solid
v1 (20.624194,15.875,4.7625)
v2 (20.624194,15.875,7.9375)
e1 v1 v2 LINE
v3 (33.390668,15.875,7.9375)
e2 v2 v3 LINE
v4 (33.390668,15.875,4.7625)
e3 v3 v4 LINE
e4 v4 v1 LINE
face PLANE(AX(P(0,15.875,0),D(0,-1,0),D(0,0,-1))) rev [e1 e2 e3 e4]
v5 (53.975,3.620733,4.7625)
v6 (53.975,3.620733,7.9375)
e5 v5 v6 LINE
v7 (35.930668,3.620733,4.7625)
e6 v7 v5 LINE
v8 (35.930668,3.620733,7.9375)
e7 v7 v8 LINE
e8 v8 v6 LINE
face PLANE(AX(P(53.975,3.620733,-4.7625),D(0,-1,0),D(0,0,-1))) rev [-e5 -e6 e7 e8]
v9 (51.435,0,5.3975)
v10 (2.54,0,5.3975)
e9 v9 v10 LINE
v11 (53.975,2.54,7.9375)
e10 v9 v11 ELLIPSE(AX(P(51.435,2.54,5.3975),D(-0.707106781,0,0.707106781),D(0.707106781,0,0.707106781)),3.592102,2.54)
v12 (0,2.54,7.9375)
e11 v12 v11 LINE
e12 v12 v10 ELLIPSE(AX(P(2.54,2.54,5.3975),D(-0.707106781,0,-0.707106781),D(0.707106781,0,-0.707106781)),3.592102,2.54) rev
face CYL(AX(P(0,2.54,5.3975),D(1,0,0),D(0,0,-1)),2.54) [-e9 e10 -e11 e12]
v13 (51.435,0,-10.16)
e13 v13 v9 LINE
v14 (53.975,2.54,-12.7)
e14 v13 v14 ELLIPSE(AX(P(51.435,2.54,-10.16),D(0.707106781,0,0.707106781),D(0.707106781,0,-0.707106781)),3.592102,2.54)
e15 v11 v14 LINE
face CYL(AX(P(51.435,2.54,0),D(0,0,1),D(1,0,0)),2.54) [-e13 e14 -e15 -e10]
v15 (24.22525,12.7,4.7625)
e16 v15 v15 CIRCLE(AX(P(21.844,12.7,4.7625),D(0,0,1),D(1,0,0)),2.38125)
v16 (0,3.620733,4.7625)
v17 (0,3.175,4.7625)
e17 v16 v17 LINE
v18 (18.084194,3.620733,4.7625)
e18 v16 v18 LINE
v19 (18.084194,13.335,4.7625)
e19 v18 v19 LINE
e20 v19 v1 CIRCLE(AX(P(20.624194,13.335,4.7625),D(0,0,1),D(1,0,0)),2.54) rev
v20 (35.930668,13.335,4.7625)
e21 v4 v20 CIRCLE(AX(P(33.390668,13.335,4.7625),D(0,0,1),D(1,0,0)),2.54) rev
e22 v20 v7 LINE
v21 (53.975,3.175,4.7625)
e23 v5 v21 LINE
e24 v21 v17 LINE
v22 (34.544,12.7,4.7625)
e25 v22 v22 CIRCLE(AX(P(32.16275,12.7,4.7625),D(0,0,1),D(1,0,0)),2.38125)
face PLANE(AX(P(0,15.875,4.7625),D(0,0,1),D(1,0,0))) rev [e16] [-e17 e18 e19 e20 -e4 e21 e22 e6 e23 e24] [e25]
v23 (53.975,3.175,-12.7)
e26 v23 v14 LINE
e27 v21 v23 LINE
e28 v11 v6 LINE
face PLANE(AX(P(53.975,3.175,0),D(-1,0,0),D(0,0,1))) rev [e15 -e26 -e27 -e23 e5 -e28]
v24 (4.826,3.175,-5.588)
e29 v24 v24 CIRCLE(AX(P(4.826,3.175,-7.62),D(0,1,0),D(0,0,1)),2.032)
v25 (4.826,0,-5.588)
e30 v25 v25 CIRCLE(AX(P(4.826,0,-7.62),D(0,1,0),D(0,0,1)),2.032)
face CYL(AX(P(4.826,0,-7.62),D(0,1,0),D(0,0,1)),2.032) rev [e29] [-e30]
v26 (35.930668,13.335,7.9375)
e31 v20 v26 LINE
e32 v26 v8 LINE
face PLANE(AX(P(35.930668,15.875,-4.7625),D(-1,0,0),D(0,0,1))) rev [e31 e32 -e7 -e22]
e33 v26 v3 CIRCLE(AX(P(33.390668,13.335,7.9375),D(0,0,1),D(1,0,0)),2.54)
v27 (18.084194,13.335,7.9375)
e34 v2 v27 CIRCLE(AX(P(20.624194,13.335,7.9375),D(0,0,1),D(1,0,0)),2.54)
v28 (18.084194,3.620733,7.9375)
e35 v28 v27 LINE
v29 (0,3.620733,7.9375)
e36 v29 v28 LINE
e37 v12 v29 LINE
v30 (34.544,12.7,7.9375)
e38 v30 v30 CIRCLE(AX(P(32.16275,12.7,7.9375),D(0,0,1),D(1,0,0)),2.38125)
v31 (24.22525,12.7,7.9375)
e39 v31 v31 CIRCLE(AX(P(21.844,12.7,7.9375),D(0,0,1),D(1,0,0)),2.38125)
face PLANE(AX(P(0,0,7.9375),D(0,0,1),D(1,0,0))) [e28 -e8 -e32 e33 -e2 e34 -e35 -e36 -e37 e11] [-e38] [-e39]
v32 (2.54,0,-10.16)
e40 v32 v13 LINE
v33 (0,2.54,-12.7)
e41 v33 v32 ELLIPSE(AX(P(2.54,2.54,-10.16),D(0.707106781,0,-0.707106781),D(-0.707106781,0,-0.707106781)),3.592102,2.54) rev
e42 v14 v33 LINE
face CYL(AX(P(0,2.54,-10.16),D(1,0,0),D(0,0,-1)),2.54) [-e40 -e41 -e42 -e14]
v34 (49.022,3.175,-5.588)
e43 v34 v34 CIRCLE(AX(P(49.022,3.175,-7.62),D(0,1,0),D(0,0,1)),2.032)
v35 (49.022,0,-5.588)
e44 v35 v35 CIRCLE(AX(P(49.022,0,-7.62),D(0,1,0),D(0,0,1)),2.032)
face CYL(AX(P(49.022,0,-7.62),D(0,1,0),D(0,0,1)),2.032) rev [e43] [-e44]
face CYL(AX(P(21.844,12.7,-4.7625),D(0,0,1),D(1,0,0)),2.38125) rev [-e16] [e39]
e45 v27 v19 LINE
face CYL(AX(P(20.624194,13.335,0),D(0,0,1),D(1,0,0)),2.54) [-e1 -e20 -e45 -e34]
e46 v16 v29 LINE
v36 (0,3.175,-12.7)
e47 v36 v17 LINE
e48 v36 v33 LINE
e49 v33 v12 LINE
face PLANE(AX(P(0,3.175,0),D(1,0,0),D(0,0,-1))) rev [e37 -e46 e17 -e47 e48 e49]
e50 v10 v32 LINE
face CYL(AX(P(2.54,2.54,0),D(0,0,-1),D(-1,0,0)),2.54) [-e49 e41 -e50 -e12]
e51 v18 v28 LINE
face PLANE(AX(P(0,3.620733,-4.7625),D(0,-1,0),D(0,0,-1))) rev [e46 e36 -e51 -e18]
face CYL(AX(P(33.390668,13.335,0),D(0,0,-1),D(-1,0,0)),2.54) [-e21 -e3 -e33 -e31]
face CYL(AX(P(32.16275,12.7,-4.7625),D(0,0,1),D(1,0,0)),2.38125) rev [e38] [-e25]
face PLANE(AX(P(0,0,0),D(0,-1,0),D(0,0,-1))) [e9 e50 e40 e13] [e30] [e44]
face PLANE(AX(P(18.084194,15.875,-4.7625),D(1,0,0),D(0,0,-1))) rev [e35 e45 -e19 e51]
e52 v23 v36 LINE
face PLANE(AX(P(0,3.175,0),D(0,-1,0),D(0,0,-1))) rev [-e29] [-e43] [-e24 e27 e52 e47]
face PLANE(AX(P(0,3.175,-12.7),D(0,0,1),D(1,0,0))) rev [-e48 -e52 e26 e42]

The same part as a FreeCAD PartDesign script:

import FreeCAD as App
import Part
import Sketcher

V = App.Vector
Q = App.Units.Quantity


def edges_at(feature, points):
    """Names of the edges that pass closest to the given points."""
    edges = feature.Shape.Edges
    near = lambda p: min(range(len(edges)), key=lambda i: edges[i].distToShape(Part.Vertex(*p))[0])
    return sorted({f"Edge{near(p) + 1}" for p in points})


def add_polygon(sketch, points):
    """Adds a closed chain of lines whose ends are joined by coincident constraints."""
    first, n = sketch.GeometryCount, len(points)
    for a, b in zip(points, points[1:] + points[:1]):
        sketch.addGeometry(Part.LineSegment(App.Vector(*a, 0), App.Vector(*b, 0)), False)
    for i in range(n):
        sketch.addConstraint(Sketcher.Constraint("Coincident", first + i, 2, first + (i + 1) % n, 1))

doc = App.newDocument("Part")
body = doc.addObject("PartDesign::Body", "Body")

# Sketch on XZ plane
sketch1 = body.newObject("Sketcher::SketchObject", "Sketch")
sketch1.AttachmentSupport = (doc.getObject("XZ_Plane"), [""])
sketch1.MapMode = "FlatFace"
add_polygon(sketch1, [(0, -13), (0, 0), (54, 0), (54, -13)])  # lines 0-3
sketch1.addConstraint([
    Sketcher.Constraint("Vertical", 0),
    Sketcher.Constraint("Horizontal", 1),
    Sketcher.Constraint("Vertical", 2),
    Sketcher.Constraint("Horizontal", 3),
    Sketcher.Constraint("Coincident", 0, 2, -1, 1),
    Sketcher.Constraint("DistanceY", 0, 1, 0, 2, Q("0.5 in")),
    Sketcher.Constraint("DistanceX", 1, 1, 1, 2, Q("2.125 in")),
])
pad1 = body.newObject("PartDesign::Pad", "Pad")
pad1.Profile = sketch1
pad1.Length = Q("0.125 in")
pad1.Reversed = True

# Sketch on XZ plane
sketch2 = body.newObject("Sketcher::SketchObject", "Sketch001")
sketch2.AttachmentSupport = (doc.getObject("XZ_Plane"), [""])
sketch2.MapMode = "FlatFace"
sketch2.AttachmentOffset = App.Placement(V(0, 0, -0.125 * 25.4), App.Rotation())
sketch2.addGeometry([
    Part.Circle(V(4.8, -7.6, 0), V(0, 0, 1), 2),
    Part.Circle(V(49, -7.6, 0), V(0, 0, 1), 2),
], False)
sketch2.addConstraint([
    Sketcher.Constraint("Equal", 0, 1),
    Sketcher.Constraint("Horizontal", 0, 3, 1, 3),
    Sketcher.Constraint("Diameter", 0, Q("0.16 in")),
    Sketcher.Constraint("DistanceY", 0, 3, -1, 1, Q("0.3 in")),
    Sketcher.Constraint("DistanceX", -1, 1, 0, 3, Q("0.19 in")),
    Sketcher.Constraint("DistanceX", -1, 1, 1, 3, Q("1.93 in")),
])
pocket1 = body.newObject("PartDesign::Pocket", "Pocket")
pocket1.Profile = sketch2
pocket1.Length = Q("0.125 in")
pocket1.Reversed = True

# Sketch on XZ plane
sketch3 = body.newObject("Sketcher::SketchObject", "Sketch002")
sketch3.AttachmentSupport = (doc.getObject("XZ_Plane"), [""])
sketch3.MapMode = "FlatFace"
sketch3.AttachmentOffset = App.Placement(V(0, 0, -0.125 * 25.4), App.Rotation())
add_polygon(sketch3, [(0, 0), (0, 8), (54, 8), (54, 0)])  # lines 0-3
sketch3.addConstraint([
    Sketcher.Constraint("Vertical", 0),
    Sketcher.Constraint("Horizontal", 1),
    Sketcher.Constraint("Vertical", 2),
    Sketcher.Constraint("Horizontal", 3),
    Sketcher.Constraint("Coincident", 3, 2, -1, 1),
    Sketcher.Constraint("DistanceX", 1, 1, 1, 2, Q("2.125 in")),
    Sketcher.Constraint("DistanceY", 0, 1, 0, 2, Q("0.3125 in")),
])
pad2 = body.newObject("PartDesign::Pad", "Pad001")
pad2.Profile = sketch3
pad2.Length = Q("0.125 in")

# Sketch on XZ plane
sketch4 = body.newObject("Sketcher::SketchObject", "Sketch003")
sketch4.AttachmentSupport = (doc.getObject("XZ_Plane"), [""])
sketch4.MapMode = "FlatFace"
sketch4.AttachmentOffset = App.Placement(V(0, 0, -0.125 * 25.4), App.Rotation())
add_polygon(sketch4, [(0, 4.8), (0, 7.9), (54, 7.9), (54, 4.8)])  # lines 0-3
sketch4.addConstraint([
    Sketcher.Constraint("Vertical", 0),
    Sketcher.Constraint("Horizontal", 1),
    Sketcher.Constraint("Vertical", 2),
    Sketcher.Constraint("Horizontal", 3),
    Sketcher.Constraint("PointOnObject", 0, 2, -2),
    Sketcher.Constraint("DistanceX", 1, 1, 1, 2, Q("2.125 in")),
    Sketcher.Constraint("DistanceY", 0, 1, 0, 2, Q("0.125 in")),
    Sketcher.Constraint("DistanceY", -1, 1, 0, 2, Q("0.3125 in")),
])
pad3 = body.newObject("PartDesign::Pad", "Pad002")
pad3.Profile = sketch4
pad3.Length = Q("0.5 in")
pad3.Reversed = True

# Sketch on XY plane
sketch5 = body.newObject("Sketcher::SketchObject", "Sketch004")
sketch5.AttachmentSupport = (doc.getObject("XY_Plane"), [""])
sketch5.MapMode = "FlatFace"
sketch5.AttachmentOffset = App.Placement(V(0, 0, 0.3125 * 25.4), App.Rotation())
sketch5.addGeometry([
    Part.Circle(V(21.8, 12.7, 0), V(0, 0, 1), 2.4),
    Part.Circle(V(32.2, 12.7, 0), V(0, 0, 1), 2.4),
], False)
sketch5.addConstraint([
    Sketcher.Constraint("Equal", 0, 1),
    Sketcher.Constraint("Horizontal", 0, 3, 1, 3),
    Sketcher.Constraint("Diameter", 0, Q("0.1875 in")),
    Sketcher.Constraint("DistanceY", -1, 1, 0, 3, Q("0.5 in")),
    Sketcher.Constraint("DistanceX", -1, 1, 0, 3, Q("0.86 in")),
    Sketcher.Constraint("DistanceX", 0, 3, 1, 3, Q("0.40625 in")),
])
pocket2 = body.newObject("PartDesign::Pocket", "Pocket001")
pocket2.Profile = sketch5
pocket2.Length = Q("0.5 in")

# Sketch on XY plane
sketch6 = body.newObject("Sketcher::SketchObject", "Sketch005")
sketch6.AttachmentSupport = (doc.getObject("XY_Plane"), [""])
sketch6.MapMode = "FlatFace"
sketch6.AttachmentOffset = App.Placement(V(0, 0, 0.3125 * 25.4), App.Rotation())
add_polygon(sketch6, [(0, 16), (0, 4), (18, 4), (18, 16)])  # lines 0-3
add_polygon(sketch6, [(36, 16), (36, 4), (54, 4), (54, 16)])  # lines 4-7
sketch6.addConstraint([
    Sketcher.Constraint("Vertical", 0),
    Sketcher.Constraint("Horizontal", 1),
    Sketcher.Constraint("Vertical", 2),
    Sketcher.Constraint("Horizontal", 3),
    Sketcher.Constraint("Vertical", 4),
    Sketcher.Constraint("Horizontal", 5),
    Sketcher.Constraint("Vertical", 6),
    Sketcher.Constraint("Horizontal", 7),
    Sketcher.Constraint("PointOnObject", 0, 2, -2),
    Sketcher.Constraint("Horizontal", 1, 2, 4, 2),
    Sketcher.Constraint("Horizontal", 3, 2, 6, 2),
    Sketcher.Constraint("DistanceY", -1, 1, 2, 2, Q("0.625 in")),
    Sketcher.Constraint("DistanceX", -1, 1, 5, 2, Q("2.125 in")),
    Sketcher.Constraint("DistanceX", 5, 1, 5, 2, Q("18.044332 mm")),
    Sketcher.Constraint("DistanceX", 1, 1, 1, 2, Q("18.084194 mm")),
    Sketcher.Constraint("DistanceY", 0, 2, 0, 1, Q("12.254267 mm")),
])
pocket3 = body.newObject("PartDesign::Pocket", "Pocket002")
pocket3.Profile = sketch6
pocket3.Length = Q("0.5 in")
doc.recompute()

fillet = body.newObject("PartDesign::Fillet", "Fillet")
fillet.Base = (pocket3, edges_at(pocket3, [
    (26.988, 0, 7.938),
    (26.988, 0, -12.7),
    (53.975, 0, -2.381),
    (0, 0, -2.381),
    (35.931, 15.875, 6.35),
    (18.084, 15.875, 6.35),
]))
fillet.Radius = Q("0.1 in")

doc.recompute()
